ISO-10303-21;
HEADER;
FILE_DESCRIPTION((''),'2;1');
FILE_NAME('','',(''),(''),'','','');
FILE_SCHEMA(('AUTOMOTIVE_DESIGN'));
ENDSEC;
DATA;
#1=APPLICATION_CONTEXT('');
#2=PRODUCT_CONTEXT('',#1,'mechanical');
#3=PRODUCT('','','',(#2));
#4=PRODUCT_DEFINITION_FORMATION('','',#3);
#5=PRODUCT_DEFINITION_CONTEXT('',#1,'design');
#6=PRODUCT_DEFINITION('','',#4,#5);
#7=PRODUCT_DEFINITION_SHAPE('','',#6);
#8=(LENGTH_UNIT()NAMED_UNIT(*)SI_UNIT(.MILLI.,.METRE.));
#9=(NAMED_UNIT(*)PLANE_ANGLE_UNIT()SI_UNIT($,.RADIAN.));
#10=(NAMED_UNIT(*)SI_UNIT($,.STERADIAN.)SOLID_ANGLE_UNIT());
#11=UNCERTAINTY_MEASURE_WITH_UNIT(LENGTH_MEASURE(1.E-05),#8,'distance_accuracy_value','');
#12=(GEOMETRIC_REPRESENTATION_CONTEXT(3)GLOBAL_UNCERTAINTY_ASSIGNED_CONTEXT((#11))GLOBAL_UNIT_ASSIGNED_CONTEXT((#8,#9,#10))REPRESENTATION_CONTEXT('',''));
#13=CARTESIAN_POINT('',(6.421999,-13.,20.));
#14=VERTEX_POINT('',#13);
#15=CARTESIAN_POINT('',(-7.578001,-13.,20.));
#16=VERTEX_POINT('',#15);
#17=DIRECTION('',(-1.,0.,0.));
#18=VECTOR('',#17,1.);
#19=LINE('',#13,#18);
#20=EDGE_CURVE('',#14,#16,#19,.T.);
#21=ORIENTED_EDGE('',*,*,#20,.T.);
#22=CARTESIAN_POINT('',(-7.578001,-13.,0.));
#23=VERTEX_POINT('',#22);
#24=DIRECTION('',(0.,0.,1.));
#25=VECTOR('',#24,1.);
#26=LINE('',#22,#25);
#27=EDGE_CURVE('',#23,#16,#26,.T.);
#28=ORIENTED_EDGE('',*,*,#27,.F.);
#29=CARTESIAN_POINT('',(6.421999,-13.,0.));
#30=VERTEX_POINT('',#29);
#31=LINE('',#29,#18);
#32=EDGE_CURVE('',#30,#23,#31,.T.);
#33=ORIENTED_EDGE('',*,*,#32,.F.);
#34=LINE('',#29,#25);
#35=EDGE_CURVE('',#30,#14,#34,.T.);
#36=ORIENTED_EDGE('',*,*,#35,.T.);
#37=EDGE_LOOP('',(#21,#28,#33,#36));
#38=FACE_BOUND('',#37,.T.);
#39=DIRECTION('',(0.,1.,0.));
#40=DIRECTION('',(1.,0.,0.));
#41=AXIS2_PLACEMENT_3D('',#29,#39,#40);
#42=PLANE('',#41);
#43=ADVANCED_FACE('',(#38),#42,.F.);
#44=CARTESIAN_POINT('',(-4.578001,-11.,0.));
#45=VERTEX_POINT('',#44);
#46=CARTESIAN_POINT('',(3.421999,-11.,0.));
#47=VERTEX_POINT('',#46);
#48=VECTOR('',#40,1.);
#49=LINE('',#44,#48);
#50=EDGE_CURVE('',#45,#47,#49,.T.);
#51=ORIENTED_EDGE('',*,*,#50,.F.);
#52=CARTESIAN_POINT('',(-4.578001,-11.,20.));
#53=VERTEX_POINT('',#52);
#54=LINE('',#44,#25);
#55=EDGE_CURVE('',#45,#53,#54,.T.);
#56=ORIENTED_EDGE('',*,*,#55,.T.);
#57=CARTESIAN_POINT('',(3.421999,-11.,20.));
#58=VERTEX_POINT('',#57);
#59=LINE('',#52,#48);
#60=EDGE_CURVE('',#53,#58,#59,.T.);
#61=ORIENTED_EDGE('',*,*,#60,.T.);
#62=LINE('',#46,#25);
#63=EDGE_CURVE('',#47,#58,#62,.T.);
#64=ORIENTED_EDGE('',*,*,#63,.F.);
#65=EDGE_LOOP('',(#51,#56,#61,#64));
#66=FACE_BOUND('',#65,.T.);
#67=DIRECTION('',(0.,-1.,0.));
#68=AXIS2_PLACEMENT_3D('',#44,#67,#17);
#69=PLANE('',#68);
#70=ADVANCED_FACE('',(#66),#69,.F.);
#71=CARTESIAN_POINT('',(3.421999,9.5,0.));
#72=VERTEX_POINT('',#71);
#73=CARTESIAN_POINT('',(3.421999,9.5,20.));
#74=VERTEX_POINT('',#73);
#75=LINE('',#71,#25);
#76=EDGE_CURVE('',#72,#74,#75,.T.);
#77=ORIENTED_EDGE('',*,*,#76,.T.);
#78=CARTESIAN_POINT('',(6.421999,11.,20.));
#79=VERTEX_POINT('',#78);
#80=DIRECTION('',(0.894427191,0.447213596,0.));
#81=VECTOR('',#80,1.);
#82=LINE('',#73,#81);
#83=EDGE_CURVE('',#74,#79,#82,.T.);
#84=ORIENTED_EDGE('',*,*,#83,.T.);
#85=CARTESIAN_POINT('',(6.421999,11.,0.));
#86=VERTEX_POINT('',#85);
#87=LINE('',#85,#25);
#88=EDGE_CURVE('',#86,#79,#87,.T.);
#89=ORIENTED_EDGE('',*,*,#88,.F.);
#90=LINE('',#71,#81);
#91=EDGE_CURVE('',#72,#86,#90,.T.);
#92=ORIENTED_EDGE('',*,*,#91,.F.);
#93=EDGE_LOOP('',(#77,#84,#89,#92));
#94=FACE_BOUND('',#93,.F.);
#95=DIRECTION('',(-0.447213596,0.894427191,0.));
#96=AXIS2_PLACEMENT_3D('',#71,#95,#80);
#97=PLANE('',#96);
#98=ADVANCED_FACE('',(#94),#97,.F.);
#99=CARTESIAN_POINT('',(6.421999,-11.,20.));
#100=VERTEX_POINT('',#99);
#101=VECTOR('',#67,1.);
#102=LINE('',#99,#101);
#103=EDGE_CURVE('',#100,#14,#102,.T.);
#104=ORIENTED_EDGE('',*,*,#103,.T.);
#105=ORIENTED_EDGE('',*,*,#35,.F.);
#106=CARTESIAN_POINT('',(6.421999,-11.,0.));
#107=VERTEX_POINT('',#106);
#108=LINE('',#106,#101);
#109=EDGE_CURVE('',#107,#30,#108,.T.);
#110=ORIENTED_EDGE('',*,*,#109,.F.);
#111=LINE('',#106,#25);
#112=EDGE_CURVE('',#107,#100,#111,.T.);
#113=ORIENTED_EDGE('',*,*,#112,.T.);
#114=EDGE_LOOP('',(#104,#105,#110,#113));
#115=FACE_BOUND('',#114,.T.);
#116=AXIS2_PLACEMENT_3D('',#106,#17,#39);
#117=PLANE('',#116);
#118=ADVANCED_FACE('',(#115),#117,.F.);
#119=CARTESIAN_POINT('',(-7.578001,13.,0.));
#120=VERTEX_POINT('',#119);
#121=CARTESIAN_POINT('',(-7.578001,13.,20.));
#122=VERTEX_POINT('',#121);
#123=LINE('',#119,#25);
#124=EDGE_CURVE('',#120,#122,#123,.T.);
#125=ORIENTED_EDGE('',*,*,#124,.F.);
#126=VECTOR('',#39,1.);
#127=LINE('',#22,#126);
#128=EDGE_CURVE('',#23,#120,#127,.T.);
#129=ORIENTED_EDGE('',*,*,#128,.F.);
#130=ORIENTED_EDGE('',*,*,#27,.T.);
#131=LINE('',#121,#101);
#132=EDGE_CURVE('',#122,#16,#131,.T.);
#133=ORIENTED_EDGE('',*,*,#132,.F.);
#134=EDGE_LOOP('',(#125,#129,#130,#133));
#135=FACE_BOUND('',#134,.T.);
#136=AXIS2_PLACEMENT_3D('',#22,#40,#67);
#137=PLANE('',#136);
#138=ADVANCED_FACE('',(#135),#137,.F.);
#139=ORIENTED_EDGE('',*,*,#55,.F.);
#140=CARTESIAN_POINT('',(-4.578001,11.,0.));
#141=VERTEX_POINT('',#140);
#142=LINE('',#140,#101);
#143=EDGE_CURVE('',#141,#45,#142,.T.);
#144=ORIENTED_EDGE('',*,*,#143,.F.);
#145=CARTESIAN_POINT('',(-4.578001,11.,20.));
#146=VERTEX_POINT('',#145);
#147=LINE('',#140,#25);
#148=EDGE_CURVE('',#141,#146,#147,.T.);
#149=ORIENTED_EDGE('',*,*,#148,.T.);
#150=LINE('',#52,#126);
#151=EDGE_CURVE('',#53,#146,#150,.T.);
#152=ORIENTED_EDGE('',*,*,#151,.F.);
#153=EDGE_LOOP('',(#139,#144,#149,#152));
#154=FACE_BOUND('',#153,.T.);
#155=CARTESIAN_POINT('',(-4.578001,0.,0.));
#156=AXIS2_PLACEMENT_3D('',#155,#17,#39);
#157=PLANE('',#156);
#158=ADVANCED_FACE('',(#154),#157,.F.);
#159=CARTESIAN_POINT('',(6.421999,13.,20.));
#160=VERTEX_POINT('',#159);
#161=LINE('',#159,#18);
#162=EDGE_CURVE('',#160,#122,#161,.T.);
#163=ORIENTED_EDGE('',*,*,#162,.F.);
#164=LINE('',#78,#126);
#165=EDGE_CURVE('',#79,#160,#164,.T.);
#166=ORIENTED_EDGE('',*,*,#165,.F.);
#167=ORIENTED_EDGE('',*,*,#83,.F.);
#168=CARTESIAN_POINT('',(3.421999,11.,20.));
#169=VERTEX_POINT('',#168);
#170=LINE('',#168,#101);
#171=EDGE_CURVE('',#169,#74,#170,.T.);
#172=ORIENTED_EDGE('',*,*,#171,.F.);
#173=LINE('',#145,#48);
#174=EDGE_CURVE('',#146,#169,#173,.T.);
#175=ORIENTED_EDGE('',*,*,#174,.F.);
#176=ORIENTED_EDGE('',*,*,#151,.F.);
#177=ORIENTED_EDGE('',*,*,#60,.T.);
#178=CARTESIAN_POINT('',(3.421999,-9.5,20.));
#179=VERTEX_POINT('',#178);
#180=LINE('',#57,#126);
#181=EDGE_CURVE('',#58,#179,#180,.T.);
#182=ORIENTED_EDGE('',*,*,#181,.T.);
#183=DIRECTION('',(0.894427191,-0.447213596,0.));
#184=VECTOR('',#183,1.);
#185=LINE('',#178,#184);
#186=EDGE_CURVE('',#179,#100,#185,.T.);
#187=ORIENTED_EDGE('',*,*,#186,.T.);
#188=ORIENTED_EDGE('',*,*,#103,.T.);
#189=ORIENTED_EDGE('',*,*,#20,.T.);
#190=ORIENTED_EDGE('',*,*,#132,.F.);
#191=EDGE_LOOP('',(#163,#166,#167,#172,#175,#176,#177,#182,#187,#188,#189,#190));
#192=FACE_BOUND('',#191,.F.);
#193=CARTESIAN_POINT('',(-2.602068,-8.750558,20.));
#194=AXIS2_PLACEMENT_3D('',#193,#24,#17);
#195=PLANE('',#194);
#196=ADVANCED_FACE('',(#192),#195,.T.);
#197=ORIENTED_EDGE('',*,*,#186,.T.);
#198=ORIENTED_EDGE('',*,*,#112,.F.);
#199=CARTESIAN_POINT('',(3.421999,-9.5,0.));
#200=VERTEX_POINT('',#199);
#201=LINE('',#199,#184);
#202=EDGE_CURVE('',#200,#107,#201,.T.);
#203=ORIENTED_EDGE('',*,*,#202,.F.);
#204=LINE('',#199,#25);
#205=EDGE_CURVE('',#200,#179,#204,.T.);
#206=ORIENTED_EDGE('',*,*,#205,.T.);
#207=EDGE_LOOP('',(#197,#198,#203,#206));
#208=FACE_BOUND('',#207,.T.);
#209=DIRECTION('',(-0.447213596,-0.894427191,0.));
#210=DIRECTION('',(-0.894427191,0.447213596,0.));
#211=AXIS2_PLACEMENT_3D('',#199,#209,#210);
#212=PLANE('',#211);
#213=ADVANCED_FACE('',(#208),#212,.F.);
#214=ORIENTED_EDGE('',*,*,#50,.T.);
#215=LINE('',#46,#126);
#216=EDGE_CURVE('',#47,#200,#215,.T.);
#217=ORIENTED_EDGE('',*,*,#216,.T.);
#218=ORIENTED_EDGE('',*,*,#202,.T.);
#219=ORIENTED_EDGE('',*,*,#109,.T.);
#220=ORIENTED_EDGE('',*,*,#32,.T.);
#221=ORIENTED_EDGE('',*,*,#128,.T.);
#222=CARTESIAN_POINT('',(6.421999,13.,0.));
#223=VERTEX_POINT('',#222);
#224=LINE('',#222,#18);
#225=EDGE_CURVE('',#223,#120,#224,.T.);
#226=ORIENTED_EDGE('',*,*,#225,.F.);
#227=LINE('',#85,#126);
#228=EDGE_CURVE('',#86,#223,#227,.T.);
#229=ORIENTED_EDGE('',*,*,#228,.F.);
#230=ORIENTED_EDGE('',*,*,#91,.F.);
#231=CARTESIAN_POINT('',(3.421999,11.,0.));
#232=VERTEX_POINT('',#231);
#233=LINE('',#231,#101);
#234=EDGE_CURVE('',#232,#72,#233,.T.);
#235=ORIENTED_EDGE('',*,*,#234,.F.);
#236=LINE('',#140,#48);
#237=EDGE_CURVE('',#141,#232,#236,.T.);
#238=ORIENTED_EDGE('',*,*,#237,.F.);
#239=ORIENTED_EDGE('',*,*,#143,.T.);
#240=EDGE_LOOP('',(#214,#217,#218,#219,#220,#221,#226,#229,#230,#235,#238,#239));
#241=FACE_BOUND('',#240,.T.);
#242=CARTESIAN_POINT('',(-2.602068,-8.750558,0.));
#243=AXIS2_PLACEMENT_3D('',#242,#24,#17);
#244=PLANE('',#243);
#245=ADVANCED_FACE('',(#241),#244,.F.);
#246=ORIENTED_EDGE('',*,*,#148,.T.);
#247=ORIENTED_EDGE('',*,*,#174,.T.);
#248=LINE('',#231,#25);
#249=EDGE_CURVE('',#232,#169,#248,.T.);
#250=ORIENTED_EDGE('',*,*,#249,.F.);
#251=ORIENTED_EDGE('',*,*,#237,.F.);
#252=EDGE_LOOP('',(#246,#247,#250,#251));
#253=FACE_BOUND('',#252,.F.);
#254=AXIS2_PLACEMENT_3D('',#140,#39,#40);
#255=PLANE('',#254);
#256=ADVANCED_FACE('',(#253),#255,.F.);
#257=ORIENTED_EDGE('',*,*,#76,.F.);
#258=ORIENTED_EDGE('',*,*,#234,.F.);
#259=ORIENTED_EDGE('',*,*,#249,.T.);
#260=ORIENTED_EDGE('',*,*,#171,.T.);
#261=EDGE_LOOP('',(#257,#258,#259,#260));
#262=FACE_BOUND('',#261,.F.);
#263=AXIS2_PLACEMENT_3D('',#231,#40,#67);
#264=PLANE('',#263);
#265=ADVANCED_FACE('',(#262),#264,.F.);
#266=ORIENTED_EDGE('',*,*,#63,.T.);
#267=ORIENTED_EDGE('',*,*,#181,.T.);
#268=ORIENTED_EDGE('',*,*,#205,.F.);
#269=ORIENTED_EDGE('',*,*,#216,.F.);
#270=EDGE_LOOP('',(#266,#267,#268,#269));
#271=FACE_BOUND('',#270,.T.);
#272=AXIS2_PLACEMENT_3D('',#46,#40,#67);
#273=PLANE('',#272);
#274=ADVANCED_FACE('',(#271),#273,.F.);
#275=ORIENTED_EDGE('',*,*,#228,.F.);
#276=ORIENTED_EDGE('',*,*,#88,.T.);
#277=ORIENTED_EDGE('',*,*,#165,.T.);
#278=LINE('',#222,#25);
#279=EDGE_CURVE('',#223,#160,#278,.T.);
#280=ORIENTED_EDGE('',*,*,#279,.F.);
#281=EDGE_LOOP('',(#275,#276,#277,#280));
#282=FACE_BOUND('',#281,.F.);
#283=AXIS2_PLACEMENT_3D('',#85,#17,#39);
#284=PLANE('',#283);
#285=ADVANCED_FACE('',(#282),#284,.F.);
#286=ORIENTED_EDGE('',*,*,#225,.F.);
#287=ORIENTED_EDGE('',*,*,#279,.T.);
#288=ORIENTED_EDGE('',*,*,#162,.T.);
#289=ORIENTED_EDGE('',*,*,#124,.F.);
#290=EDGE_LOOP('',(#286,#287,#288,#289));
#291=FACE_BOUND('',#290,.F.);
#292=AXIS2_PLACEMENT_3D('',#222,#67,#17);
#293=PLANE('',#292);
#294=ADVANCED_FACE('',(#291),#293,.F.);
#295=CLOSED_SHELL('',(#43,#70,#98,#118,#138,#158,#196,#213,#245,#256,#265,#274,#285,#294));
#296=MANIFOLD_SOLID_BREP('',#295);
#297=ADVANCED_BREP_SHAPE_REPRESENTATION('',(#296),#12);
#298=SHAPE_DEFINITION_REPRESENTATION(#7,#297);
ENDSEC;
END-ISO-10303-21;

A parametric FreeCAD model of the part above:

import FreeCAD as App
import Part
import Sketcher


def add_polygon(sketch, points):
    """Adds a closed chain of lines whose ends are joined by coincident constraints."""
    first, n = sketch.GeometryCount, len(points)
    for a, b in zip(points, points[1:] + points[:1]):
        sketch.addGeometry(Part.LineSegment(App.Vector(*a, 0), App.Vector(*b, 0)), False)
    for i in range(n):
        sketch.addConstraint(Sketcher.Constraint("Coincident", first + i, 2, first + (i + 1) % n, 1))

doc = App.newDocument("Part")
body = doc.addObject("PartDesign::Body", "Body")

sketch1 = body.newObject("Sketcher::SketchObject", "Sketch")
sketch1.AttachmentSupport = (doc.getObject("XY_Plane"), [""])
sketch1.MapMode = "FlatFace"
add_polygon(sketch1, [(3.4, 11), (3.4, 9.5), (6.4, 11), (6.4, 13), (-7.6, 13), (-7.6, 0), (-4.6, 0), (-4.6, 11)])
sketch1.addConstraint([
    Sketcher.Constraint("Vertical", 0),
    Sketcher.Constraint("Vertical", 2),
    Sketcher.Constraint("Horizontal", 3),
    Sketcher.Constraint("Vertical", 4),
    Sketcher.Constraint("Horizontal", 5),
    Sketcher.Constraint("Vertical", 6),
    Sketcher.Constraint("Horizontal", 7),
    Sketcher.Constraint("PointOnObject", 4, 2, -1),
    Sketcher.Constraint("Horizontal", 1, 2, 6, 2),
    Sketcher.Constraint("DistanceX", 3, 2, 3, 1, 14.0),
    Sketcher.Constraint("DistanceX", 5, 1, 5, 2, 3.0),
    Sketcher.Constraint("DistanceX", 7, 1, 7, 2, 8.0),
    Sketcher.Constraint("DistanceY", 2, 1, 2, 2, 2.0),
    Sketcher.Constraint("DistanceY", 4, 2, 4, 1, 13.0),
    Sketcher.Constraint("DistanceY", 0, 2, 0, 1, 1.5),
    Sketcher.Constraint("DistanceX", -1, 1, 0, 2, 3.421999),
])
pad1 = body.newObject("PartDesign::Pad", "Pad")
pad1.Profile = sketch1
pad1.Length = 20
doc.recompute()

mirrored = body.newObject("PartDesign::Mirrored", "Mirrored")
mirrored.Originals = [pad1]
mirrored.MirrorPlane = (doc.getObject("XZ_Plane"), [""])
body.Tip = mirrored

doc.recompute()
